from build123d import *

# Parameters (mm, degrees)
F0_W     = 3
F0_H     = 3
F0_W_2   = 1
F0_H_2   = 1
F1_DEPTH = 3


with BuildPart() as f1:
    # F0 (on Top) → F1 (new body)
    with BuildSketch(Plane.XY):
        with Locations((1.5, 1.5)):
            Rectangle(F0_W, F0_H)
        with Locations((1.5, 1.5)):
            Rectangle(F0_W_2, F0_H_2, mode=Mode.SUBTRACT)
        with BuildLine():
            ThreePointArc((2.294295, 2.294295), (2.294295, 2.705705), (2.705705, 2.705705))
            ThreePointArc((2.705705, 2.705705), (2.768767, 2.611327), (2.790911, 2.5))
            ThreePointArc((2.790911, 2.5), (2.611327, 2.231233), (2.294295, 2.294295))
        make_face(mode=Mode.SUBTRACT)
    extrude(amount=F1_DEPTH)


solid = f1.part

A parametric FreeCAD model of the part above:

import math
import FreeCAD as App
import Part
import Sketcher
from FreeCAD import Vector
Q = App.Units.Quantity

doc = App.newDocument("Part")
body = doc.addObject("PartDesign::Body", "Body")

# Sketch on XY plane
sketch1 = body.newObject("Sketcher::SketchObject", "Sketch")
sketch1.AttachmentSupport = (doc.getObject("XY_Plane"), [""])
sketch1.MapMode = "FlatFace"
sketch1.addGeometry([
    Part.LineSegment(Vector(0, 3, 0), Vector(0, 0, 0)),  # 0
    Part.LineSegment(Vector(0, 0, 0), Vector(3, 0, 0)),  # 1
    Part.LineSegment(Vector(3, 0, 0), Vector(3, 3, 0)),  # 2
    Part.LineSegment(Vector(3, 3, 0), Vector(0, 3, 0)),  # 3
    Part.LineSegment(Vector(2, 1, 0), Vector(1, 1, 0)),  # 4
    Part.LineSegment(Vector(1, 1, 0), Vector(1, 2, 0)),  # 5
    Part.LineSegment(Vector(1, 2, 0), Vector(2, 2, 0)),  # 6
    Part.LineSegment(Vector(2, 2, 0), Vector(2, 1, 0)),  # 7
    Part.ArcOfCircle(Part.Circle(Vector(2.5, 2.5, 0), Vector(0, 0, 1), 0.29), math.radians(-135), math.radians(0)),  # 8
    Part.ArcOfCircle(Part.Circle(Vector(2.5, 2.5, 0), Vector(0, 0, 1), 0.29), math.radians(45), math.radians(225)),  # 9
    Part.ArcOfCircle(Part.Circle(Vector(2.5, 2.5, 0), Vector(0, 0, 1), 0.29), math.radians(0), math.radians(45)),  # 10
], False)
sketch1.addConstraint([
    Sketcher.Constraint("Coincident", 0, 2, 1, 1),
    Sketcher.Constraint("Coincident", 1, 2, 2, 1),
    Sketcher.Constraint("Coincident", 2, 2, 3, 1),
    Sketcher.Constraint("Coincident", 3, 2, 0, 1),
    Sketcher.Constraint("Coincident", 4, 2, 5, 1),
    Sketcher.Constraint("Coincident", 5, 2, 6, 1),
    Sketcher.Constraint("Coincident", 6, 2, 7, 1),
    Sketcher.Constraint("Coincident", 7, 2, 4, 1),
    Sketcher.Constraint("Coincident", 8, 1, 9, 2),
    Sketcher.Constraint("Coincident", 9, 1, 10, 2),
    Sketcher.Constraint("Coincident", 10, 1, 8, 2),
    Sketcher.Constraint("Vertical", 0),
    Sketcher.Constraint("Horizontal", 1),
    Sketcher.Constraint("Vertical", 2),
    Sketcher.Constraint("Horizontal", 3),
    Sketcher.Constraint("Horizontal", 4),
    Sketcher.Constraint("Vertical", 5),
    Sketcher.Constraint("Horizontal", 6),
    Sketcher.Constraint("Vertical", 7),
    Sketcher.Constraint("Coincident", 0, 2, -1, 1),
    Sketcher.Constraint("Coincident", 9, 3, 8, 3),
    Sketcher.Constraint("Horizontal", 9, 3, 10, 1),
    Sketcher.Constraint("Equal", 3, 0),
    Sketcher.Constraint("Equal", 6, 5),
    Sketcher.Constraint("DistanceX", 1, 1, 1, 2, Q("3 mm")),
    Sketcher.Constraint("DistanceX", 4, 2, 4, 1, Q("1 mm")),
    Sketcher.Constraint("DistanceX", -1, 1, 4, 2, Q("1 mm")),
    Sketcher.Constraint("DistanceY", -1, 1, 4, 2, Q("1 mm")),
    Sketcher.Constraint("DistanceX", -1, 1, 8, 3, Q("2.5 mm")),
    Sketcher.Constraint("DistanceY", -1, 1, 8, 3, Q("2.499999 mm")),
    Sketcher.Constraint("DistanceY", -1, 1, 10, 3, Q("2.500002 mm")),
    Sketcher.Constraint("Radius", 8, Q("0.290911 mm")),
    Sketcher.Constraint("DistanceX", 10, 3, 9, 1, Q("0.2057 mm")),
    Sketcher.Constraint("DistanceX", 8, 1, 10, 3, Q("0.20571 mm")),
])
pad1 = body.newObject("PartDesign::Pad", "Pad")
pad1.Profile = sketch1
pad1.Length = 3

doc.recompute()
